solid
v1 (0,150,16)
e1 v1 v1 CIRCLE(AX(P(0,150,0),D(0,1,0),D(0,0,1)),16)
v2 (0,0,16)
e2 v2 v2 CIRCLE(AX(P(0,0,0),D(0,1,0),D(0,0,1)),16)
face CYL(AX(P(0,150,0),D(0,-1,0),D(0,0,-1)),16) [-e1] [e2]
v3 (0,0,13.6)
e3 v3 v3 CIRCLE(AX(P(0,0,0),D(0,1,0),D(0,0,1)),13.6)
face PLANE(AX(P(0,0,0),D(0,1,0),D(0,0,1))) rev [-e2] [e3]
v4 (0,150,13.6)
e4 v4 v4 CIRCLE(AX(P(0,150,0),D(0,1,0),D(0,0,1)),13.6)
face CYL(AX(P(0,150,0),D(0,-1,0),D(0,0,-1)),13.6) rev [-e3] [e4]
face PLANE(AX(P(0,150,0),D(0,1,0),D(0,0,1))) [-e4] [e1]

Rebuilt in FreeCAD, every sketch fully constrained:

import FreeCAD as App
import Part
import Sketcher
Q = App.Units.Quantity

doc = App.newDocument("Part")
body = doc.addObject("PartDesign::Body", "Body")

# Sketch on XZ plane
sketch1 = body.newObject("Sketcher::SketchObject", "Sketch")
sketch1.AttachmentSupport = (doc.getObject("XZ_Plane"), [""])
sketch1.MapMode = "FlatFace"
sketch1.addGeometry([
    Part.Circle(App.Vector(0, 0, 0), App.Vector(0, 0, 1), 16),
    Part.Circle(App.Vector(0, 0, 0), App.Vector(0, 0, 1), 14),
], False)
sketch1.addConstraint([
    Sketcher.Constraint("Coincident", 0, 3, -1, 1),
    Sketcher.Constraint("Coincident", 1, 3, -1, 1),
    Sketcher.Constraint("Diameter", 0, Q("32 mm")),
    Sketcher.Constraint("Diameter", 1, Q("27.2 mm")),
])
pad1 = body.newObject("PartDesign::Pad", "Pad")
pad1.Profile = sketch1
pad1.Length = 150
pad1.Reversed = True

doc.recompute()
